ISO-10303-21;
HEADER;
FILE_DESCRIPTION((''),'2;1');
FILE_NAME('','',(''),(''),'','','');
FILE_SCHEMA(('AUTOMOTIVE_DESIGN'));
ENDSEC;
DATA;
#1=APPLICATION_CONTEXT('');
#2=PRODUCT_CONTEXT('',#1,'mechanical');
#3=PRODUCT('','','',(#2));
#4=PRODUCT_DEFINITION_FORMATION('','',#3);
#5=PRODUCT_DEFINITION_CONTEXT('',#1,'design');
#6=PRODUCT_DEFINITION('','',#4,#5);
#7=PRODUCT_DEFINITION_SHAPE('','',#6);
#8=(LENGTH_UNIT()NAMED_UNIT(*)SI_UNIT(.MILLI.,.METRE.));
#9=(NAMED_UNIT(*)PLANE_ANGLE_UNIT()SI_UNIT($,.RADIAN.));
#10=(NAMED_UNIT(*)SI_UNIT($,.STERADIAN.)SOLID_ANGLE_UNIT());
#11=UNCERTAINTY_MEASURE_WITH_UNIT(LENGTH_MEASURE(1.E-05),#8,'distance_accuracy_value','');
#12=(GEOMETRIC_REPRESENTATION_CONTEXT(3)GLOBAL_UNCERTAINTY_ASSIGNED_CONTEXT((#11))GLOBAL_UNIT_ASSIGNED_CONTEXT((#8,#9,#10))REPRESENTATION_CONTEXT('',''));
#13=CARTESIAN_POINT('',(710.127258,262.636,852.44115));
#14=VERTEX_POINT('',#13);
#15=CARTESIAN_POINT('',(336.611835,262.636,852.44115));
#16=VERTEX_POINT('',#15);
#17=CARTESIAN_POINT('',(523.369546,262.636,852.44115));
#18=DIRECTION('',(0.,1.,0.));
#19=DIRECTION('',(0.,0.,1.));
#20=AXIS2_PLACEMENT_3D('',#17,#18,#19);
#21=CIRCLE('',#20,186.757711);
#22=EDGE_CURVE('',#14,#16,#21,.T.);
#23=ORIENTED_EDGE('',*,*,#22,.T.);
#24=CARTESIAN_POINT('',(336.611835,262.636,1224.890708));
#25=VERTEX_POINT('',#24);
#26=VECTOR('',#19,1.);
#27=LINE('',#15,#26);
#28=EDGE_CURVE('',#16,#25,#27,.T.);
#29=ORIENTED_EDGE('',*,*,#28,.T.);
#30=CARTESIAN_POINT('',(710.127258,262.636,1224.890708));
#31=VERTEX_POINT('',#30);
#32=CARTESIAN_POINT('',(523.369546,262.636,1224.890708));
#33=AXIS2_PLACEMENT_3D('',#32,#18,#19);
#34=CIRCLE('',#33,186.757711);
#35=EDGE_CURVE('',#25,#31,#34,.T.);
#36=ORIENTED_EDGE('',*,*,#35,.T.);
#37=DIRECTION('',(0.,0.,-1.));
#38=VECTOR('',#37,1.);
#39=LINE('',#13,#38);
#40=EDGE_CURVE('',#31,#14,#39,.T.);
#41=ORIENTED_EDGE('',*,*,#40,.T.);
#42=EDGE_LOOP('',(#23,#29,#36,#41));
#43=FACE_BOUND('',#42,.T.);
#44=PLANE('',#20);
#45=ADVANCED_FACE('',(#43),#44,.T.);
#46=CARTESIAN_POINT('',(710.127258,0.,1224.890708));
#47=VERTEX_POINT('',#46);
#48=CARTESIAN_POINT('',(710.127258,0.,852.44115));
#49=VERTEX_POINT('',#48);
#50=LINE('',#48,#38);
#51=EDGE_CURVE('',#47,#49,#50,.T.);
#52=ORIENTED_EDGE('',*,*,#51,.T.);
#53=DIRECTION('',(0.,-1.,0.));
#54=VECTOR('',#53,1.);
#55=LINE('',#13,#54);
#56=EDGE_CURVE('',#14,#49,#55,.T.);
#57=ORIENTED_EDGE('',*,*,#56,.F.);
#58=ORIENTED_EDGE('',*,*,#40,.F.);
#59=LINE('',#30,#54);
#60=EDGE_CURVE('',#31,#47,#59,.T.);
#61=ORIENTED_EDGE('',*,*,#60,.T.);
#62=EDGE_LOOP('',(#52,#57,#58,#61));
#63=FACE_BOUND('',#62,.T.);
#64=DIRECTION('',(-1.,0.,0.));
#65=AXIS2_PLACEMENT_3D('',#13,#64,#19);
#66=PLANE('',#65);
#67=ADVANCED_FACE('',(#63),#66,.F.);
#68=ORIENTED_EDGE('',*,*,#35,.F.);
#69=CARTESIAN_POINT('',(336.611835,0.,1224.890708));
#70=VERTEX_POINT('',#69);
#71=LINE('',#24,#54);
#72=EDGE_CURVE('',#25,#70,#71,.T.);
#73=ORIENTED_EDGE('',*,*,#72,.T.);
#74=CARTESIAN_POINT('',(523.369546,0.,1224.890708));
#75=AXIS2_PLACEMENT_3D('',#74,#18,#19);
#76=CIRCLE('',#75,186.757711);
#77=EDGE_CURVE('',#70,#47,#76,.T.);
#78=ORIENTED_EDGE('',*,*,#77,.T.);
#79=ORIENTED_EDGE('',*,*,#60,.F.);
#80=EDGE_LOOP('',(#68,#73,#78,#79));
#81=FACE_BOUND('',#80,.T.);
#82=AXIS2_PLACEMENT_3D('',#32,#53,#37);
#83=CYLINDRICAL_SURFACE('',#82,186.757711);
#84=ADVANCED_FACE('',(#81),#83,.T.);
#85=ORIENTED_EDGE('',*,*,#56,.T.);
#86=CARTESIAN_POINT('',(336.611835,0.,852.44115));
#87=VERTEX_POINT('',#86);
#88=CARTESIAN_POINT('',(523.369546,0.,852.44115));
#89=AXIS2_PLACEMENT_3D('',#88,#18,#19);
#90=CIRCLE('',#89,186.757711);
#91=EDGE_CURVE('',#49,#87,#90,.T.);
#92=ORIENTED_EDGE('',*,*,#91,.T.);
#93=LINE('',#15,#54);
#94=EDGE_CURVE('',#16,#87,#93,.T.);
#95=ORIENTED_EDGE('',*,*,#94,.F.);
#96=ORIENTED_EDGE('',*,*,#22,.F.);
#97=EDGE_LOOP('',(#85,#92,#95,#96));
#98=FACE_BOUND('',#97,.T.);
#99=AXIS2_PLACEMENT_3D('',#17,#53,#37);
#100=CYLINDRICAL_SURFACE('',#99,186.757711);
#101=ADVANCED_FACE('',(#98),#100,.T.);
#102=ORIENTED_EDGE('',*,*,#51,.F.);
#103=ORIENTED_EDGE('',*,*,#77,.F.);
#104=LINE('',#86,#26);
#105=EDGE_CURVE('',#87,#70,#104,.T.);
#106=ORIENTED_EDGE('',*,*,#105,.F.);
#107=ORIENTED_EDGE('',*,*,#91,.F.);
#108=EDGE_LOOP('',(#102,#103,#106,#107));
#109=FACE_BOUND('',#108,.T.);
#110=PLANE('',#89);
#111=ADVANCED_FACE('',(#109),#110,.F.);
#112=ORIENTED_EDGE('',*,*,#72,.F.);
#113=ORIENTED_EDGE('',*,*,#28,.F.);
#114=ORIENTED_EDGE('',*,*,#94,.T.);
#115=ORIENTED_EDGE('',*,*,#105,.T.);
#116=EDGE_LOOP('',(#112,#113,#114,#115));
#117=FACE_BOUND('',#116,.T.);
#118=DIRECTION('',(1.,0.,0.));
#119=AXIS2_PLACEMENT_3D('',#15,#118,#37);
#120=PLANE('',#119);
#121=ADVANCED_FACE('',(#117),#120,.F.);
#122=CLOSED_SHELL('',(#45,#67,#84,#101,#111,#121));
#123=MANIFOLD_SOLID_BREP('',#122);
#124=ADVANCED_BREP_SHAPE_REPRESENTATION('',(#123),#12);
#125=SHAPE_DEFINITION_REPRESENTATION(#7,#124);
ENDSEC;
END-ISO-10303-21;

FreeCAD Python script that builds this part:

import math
import FreeCAD as App
import Part
import Sketcher
Q = App.Units.Quantity

doc = App.newDocument("Part")
body = doc.addObject("PartDesign::Body", "Body")

# Sketch on XZ plane
sketch1 = body.newObject("Sketcher::SketchObject", "Sketch")
sketch1.AttachmentSupport = (doc.getObject("XZ_Plane"), [""])
sketch1.MapMode = "FlatFace"
sketch1.addGeometry([
    Part.LineSegment(App.Vector(710, 1225, 0), App.Vector(710, 852, 0)),
    Part.ArcOfCircle(Part.Circle(App.Vector(523, 852, 0), App.Vector(0, 0, 1), 187), math.radians(180), math.radians(360)),
    Part.LineSegment(App.Vector(337, 852, 0), App.Vector(337, 1225, 0)),
    Part.ArcOfCircle(Part.Circle(App.Vector(523, 1225, 0), App.Vector(0, 0, 1), 187), math.radians(0), math.radians(180)),
], False)
sketch1.addConstraint([
    Sketcher.Constraint("Tangent", 0, 2, 1, 2),
    Sketcher.Constraint("Tangent", 1, 1, 2, 1),
    Sketcher.Constraint("Tangent", 2, 2, 3, 2),
    Sketcher.Constraint("Tangent", 3, 1, 0, 1),
    Sketcher.Constraint("Vertical", 0),
    Sketcher.Constraint("Vertical", 2),
    Sketcher.Constraint("Radius", 1, 186.757711),
    Sketcher.Constraint("DistanceY", 0, 2, 0, 1, 372.449558),
    Sketcher.Constraint("DistanceY", -1, 1, 1, 3, 852.44115),
    Sketcher.Constraint("DistanceX", -1, 1, 1, 3, 523.369546),
])
pad1 = body.newObject("PartDesign::Pad", "Pad")
pad1.Profile = sketch1
pad1.Length = Q("10.34 in")
pad1.Reversed = True

doc.recompute()
